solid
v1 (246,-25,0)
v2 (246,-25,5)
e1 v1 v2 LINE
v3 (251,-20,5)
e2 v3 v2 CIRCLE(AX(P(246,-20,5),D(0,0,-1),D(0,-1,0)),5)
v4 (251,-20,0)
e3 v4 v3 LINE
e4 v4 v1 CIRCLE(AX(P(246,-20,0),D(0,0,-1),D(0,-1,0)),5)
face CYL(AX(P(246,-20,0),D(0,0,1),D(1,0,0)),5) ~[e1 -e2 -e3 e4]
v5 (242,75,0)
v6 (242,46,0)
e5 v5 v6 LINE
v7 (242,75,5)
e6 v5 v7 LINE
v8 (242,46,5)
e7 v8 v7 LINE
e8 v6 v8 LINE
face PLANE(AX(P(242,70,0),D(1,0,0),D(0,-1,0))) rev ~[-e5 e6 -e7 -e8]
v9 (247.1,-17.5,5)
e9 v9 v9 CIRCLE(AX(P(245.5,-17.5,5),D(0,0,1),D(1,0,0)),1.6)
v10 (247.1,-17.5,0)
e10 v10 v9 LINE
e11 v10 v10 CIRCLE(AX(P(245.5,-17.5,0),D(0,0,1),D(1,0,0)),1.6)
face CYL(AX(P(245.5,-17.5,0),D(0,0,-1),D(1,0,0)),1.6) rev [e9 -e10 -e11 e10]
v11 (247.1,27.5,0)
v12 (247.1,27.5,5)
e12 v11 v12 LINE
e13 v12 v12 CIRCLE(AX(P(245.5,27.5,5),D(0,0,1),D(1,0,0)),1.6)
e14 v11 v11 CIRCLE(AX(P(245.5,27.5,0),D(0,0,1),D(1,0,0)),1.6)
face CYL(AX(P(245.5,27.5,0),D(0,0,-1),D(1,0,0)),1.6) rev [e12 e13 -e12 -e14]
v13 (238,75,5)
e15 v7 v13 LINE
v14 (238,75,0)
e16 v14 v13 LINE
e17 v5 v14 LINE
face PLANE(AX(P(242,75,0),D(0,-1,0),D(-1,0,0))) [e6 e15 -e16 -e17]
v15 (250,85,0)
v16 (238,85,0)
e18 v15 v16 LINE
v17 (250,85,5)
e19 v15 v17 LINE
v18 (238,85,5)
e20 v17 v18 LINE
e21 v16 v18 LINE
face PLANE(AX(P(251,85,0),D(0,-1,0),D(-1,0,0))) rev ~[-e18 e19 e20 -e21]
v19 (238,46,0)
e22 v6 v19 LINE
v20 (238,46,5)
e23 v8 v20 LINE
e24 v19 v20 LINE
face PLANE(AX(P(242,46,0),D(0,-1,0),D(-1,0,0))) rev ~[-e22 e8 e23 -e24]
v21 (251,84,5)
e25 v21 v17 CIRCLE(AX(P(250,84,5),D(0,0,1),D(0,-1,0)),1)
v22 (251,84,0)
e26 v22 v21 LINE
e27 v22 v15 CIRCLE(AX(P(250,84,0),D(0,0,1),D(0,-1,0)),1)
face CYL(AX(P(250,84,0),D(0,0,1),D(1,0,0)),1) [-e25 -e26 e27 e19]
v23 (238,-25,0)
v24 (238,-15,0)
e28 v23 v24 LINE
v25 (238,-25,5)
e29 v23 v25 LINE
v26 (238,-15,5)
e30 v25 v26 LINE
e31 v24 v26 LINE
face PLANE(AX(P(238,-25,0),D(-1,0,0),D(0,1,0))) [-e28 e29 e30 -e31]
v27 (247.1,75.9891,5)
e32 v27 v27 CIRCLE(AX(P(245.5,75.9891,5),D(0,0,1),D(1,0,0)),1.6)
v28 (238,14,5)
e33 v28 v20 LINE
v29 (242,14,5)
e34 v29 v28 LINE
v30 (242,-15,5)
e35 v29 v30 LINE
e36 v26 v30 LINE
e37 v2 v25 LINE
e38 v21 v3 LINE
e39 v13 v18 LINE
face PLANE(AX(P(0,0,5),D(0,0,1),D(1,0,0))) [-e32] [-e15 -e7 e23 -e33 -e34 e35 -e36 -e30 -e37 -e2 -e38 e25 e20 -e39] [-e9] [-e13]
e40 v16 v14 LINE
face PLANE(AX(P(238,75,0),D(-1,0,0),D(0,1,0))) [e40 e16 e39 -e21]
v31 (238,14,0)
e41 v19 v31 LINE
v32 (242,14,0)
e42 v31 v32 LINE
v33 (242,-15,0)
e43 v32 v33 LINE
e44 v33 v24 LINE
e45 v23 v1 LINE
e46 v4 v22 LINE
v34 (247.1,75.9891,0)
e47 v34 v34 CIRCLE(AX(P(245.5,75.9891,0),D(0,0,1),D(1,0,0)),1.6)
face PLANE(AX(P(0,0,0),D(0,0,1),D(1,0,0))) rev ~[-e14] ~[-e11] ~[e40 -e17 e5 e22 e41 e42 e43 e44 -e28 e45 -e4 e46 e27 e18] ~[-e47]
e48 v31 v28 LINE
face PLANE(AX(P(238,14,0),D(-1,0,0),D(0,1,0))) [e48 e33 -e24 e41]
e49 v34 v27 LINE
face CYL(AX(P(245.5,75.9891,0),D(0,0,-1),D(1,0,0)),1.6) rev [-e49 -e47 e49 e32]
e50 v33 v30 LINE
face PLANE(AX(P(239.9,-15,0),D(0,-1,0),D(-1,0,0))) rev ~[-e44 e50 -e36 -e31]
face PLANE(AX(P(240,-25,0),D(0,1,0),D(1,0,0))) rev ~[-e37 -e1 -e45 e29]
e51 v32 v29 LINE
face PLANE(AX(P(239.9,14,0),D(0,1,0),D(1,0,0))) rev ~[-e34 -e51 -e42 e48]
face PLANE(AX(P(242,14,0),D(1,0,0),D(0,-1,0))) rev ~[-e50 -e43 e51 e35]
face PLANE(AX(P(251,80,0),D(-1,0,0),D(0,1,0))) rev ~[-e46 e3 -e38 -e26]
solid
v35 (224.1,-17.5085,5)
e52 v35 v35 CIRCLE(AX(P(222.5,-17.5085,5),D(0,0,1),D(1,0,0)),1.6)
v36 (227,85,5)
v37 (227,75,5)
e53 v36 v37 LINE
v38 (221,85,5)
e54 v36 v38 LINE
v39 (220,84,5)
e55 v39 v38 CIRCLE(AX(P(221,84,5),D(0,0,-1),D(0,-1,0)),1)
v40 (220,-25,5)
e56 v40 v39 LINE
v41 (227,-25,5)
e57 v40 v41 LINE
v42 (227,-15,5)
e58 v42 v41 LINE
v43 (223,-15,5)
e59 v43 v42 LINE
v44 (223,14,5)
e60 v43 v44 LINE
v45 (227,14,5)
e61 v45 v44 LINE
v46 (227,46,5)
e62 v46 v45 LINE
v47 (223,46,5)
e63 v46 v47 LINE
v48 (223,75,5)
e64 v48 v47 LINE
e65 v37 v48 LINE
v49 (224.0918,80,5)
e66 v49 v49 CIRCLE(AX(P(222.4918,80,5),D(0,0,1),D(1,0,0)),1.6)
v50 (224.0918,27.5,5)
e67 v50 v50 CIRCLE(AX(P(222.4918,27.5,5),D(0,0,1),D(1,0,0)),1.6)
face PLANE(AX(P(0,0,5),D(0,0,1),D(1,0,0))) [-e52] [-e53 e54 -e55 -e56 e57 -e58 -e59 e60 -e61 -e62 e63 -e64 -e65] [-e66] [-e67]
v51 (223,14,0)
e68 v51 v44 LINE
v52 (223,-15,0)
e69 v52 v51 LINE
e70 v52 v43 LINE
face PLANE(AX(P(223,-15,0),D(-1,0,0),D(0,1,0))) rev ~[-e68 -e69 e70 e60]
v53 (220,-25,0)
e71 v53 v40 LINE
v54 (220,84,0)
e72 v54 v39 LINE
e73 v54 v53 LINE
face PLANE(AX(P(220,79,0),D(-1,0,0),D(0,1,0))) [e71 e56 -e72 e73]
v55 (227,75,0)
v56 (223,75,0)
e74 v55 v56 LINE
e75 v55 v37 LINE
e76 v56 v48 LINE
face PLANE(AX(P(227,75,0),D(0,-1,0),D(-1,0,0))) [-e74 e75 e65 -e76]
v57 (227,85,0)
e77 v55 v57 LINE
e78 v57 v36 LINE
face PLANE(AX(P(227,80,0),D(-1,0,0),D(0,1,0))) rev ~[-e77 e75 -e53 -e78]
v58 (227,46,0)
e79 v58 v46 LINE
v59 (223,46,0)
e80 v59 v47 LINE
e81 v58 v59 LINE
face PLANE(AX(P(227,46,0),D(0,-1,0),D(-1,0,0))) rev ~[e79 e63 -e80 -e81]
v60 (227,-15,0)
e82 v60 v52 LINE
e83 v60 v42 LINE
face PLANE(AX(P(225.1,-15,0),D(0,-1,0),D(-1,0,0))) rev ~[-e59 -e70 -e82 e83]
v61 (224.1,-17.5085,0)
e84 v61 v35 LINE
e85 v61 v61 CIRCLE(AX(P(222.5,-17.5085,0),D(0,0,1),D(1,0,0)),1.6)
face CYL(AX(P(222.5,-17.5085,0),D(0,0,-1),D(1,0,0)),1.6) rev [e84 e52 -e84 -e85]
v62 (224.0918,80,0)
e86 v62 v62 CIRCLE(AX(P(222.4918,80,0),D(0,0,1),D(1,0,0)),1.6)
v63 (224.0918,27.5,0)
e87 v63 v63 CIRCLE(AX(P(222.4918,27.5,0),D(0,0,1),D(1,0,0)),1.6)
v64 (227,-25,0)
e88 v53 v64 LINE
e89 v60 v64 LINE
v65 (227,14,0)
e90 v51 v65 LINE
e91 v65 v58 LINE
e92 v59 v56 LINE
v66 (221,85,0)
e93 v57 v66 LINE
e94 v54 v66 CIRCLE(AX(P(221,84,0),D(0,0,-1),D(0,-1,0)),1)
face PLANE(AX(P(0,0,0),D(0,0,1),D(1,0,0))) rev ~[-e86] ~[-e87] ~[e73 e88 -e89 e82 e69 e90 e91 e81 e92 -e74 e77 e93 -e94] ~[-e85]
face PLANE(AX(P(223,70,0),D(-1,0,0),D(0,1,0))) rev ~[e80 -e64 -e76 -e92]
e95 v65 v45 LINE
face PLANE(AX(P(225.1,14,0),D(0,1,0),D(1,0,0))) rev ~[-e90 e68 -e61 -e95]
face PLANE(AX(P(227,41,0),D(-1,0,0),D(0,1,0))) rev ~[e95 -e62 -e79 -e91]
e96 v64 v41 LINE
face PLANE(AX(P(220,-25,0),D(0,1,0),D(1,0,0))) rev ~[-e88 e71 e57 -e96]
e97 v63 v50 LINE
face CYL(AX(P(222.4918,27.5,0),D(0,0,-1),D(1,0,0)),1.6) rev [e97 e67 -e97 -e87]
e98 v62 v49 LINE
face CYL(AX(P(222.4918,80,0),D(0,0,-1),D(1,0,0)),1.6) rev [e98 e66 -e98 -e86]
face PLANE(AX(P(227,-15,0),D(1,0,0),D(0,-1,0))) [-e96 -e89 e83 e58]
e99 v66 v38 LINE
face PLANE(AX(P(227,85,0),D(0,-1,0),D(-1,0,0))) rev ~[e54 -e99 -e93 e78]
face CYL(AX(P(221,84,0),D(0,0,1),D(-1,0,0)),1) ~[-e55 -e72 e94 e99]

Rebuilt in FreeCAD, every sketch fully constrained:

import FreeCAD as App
import Part
import Sketcher


def edges_at(feature, points):
    """Names of the edges that pass closest to the given points."""
    edges = feature.Shape.Edges
    near = lambda p: min(range(len(edges)), key=lambda i: edges[i].distToShape(Part.Vertex(*p))[0])
    return sorted({f"Edge{near(p) + 1}" for p in points})


def add_polygon(sketch, points):
    """Adds a closed chain of lines whose ends are joined by coincident constraints."""
    first, n = sketch.GeometryCount, len(points)
    for a, b in zip(points, points[1:] + points[:1]):
        sketch.addGeometry(Part.LineSegment(App.Vector(*a, 0), App.Vector(*b, 0)), False)
    for i in range(n):
        sketch.addConstraint(Sketcher.Constraint("Coincident", first + i, 2, first + (i + 1) % n, 1))

doc = App.newDocument("Part")
body = doc.addObject("PartDesign::Body", "Body")
body.AllowCompound = True

sketch1 = doc.addObject("Sketcher::SketchObject", "Sketch")
body.addObject(sketch1)
sketch1.AttachmentSupport = (doc.XY_Plane, [""])
sketch1.MapMode = "FlatFace"
add_polygon(sketch1, [(220, 85), (220, -25), (227, -25), (227, -15), (223, -15), (223, 14), (227, 14), (227, 46), (223, 46), (223, 75), (227, 75), (227, 85)])
sketch1.addGeometry(Part.Circle(App.Vector(222.5, -17.5, 0), App.Vector(0, 0, 1), 1.6), False)
sketch1.addGeometry(Part.Circle(App.Vector(222.5, 27.5, 0), App.Vector(0, 0, 1), 1.6), False)
sketch1.addGeometry(Part.Circle(App.Vector(222.5, 80, 0), App.Vector(0, 0, 1), 1.6), False)
add_polygon(sketch1, [(238, 85), (238, 75), (242, 75), (242, 46), (238, 46), (238, 14), (242, 14), (242, -15), (238, -15), (238, -25), (251, -25), (251, 85)])
sketch1.addGeometry(Part.Circle(App.Vector(245.5, -17.5, 0), App.Vector(0, 0, 1), 1.6), False)
sketch1.addGeometry(Part.Circle(App.Vector(245.5, 27.5, 0), App.Vector(0, 0, 1), 1.6), False)
sketch1.addGeometry(Part.Circle(App.Vector(245.5, 76, 0), App.Vector(0, 0, 1), 1.6), False)
sketch1.addConstraint(Sketcher.Constraint("Vertical", 0))
sketch1.addConstraint(Sketcher.Constraint("Horizontal", 1))
sketch1.addConstraint(Sketcher.Constraint("Vertical", 2))
sketch1.addConstraint(Sketcher.Constraint("Horizontal", 3))
sketch1.addConstraint(Sketcher.Constraint("Vertical", 4))
sketch1.addConstraint(Sketcher.Constraint("Horizontal", 5))
sketch1.addConstraint(Sketcher.Constraint("Vertical", 6))
sketch1.addConstraint(Sketcher.Constraint("Horizontal", 7))
sketch1.addConstraint(Sketcher.Constraint("Vertical", 8))
sketch1.addConstraint(Sketcher.Constraint("Horizontal", 9))
sketch1.addConstraint(Sketcher.Constraint("Vertical", 10))
sketch1.addConstraint(Sketcher.Constraint("Horizontal", 11))
sketch1.addConstraint(Sketcher.Constraint("Vertical", 15))
sketch1.addConstraint(Sketcher.Constraint("Horizontal", 16))
sketch1.addConstraint(Sketcher.Constraint("Vertical", 17))
sketch1.addConstraint(Sketcher.Constraint("Horizontal", 18))
sketch1.addConstraint(Sketcher.Constraint("Vertical", 19))
sketch1.addConstraint(Sketcher.Constraint("Horizontal", 20))
sketch1.addConstraint(Sketcher.Constraint("Vertical", 21))
sketch1.addConstraint(Sketcher.Constraint("Horizontal", 22))
sketch1.addConstraint(Sketcher.Constraint("Vertical", 23))
sketch1.addConstraint(Sketcher.Constraint("Horizontal", 24))
sketch1.addConstraint(Sketcher.Constraint("Vertical", 25))
sketch1.addConstraint(Sketcher.Constraint("Horizontal", 26))
sketch1.addConstraint(Sketcher.Constraint("Equal", 12, 13))
sketch1.addConstraint(Sketcher.Constraint("Equal", 13, 14))
sketch1.addConstraint(Sketcher.Constraint("Equal", 14, 27))
sketch1.addConstraint(Sketcher.Constraint("Equal", 27, 28))
sketch1.addConstraint(Sketcher.Constraint("Equal", 28, 29))
sketch1.addConstraint(Sketcher.Constraint("Horizontal", 13, 3, 28, 3))
sketch1.addConstraint(Sketcher.Constraint("Horizontal", 9, 2, 15, 2))
sketch1.addConstraint(Sketcher.Constraint("Horizontal", 7, 2, 17, 2))
sketch1.addConstraint(Sketcher.Constraint("Horizontal", 5, 2, 19, 2))
sketch1.addConstraint(Sketcher.Constraint("Horizontal", 3, 2, 21, 2))
sketch1.addConstraint(Sketcher.Constraint("Horizontal", 1, 2, 23, 2))
sketch1.addConstraint(Sketcher.Constraint("Horizontal", 11, 2, 25, 2))
sketch1.addConstraint(Sketcher.Constraint("Vertical", 13, 3, 14, 3))
sketch1.addConstraint(Sketcher.Constraint("Vertical", 27, 3, 28, 3))
sketch1.addConstraint(Sketcher.Constraint("Vertical", 28, 3, 29, 3))
sketch1.addConstraint(Sketcher.Constraint("Vertical", 2, 2, 5, 2))
sketch1.addConstraint(Sketcher.Constraint("Vertical", 4, 2, 7, 2))
sketch1.addConstraint(Sketcher.Constraint("Vertical", 6, 2, 9, 2))
sketch1.addConstraint(Sketcher.Constraint("Vertical", 15, 2, 18, 2))
sketch1.addConstraint(Sketcher.Constraint("Vertical", 17, 2, 20, 2))
sketch1.addConstraint(Sketcher.Constraint("Vertical", 19, 2, 22, 2))
sketch1.addConstraint(Sketcher.Constraint("Equal", 9, 16))
sketch1.addConstraint(Sketcher.Constraint("Equal", 4, 8))
sketch1.addConstraint(Sketcher.Constraint("Equal", 2, 10))
sketch1.addConstraint(Sketcher.Constraint("DistanceX", 1, 1, 1, 2, 7.0))
sketch1.addConstraint(Sketcher.Constraint("DistanceY", 8, 2, 14, 3, 5.0))
sketch1.addConstraint(Sketcher.Constraint("DistanceY", 14, 3, 10, 2, 5.0))
sketch1.addConstraint(Sketcher.Constraint("Diameter", 12, 3.2))
sketch1.addConstraint(Sketcher.Constraint("DistanceY", 0, 2, 27, 3, 7.5))
sketch1.addConstraint(Sketcher.Constraint("DistanceX", 12, 3, 1, 2, 4.5))
sketch1.addConstraint(Sketcher.Constraint("DistanceX", 15, 2, 29, 3, 7.5))
sketch1.addConstraint(Sketcher.Constraint("DistanceX", 3, 2, 3, 1, 4.0))
sketch1.addConstraint(Sketcher.Constraint("DistanceX", 24, 1, 24, 2, 13.0))
sketch1.addConstraint(Sketcher.Constraint("DistanceY", 0, 2, 0, 1, 110.0))
sketch1.addConstraint(Sketcher.Constraint("DistanceY", 4, 1, 4, 2, 29.0))
sketch1.addConstraint(Sketcher.Constraint("DistanceY", -1, 1, 14, 3, 80.0))
sketch1.addConstraint(Sketcher.Constraint("DistanceX", -1, 1, 0, 2, 220.0))
sketch1.addConstraint(Sketcher.Constraint("DistanceX", -1, 1, 15, 2, 238.0))
sketch1.addConstraint(Sketcher.Constraint("DistanceY", 27, 3, 13, 3, 45.0))
sketch1.addConstraint(Sketcher.Constraint("DistanceX", 13, 3, 1, 2, 4.5082))
sketch1.addConstraint(Sketcher.Constraint("DistanceY", -1, 1, 29, 3, 75.989))
sketch1.addConstraint(Sketcher.Constraint("DistanceY", 12, 3, -1, 1, 17.5085))
pad1 = doc.addObject("PartDesign::Pad", "Pad")
body.addObject(pad1)
pad1.Profile = sketch1
pad1.Length = 5
doc.recompute()

fillet = doc.addObject("PartDesign::Fillet", "Fillet")
body.addObject(fillet)
fillet.Base = (pad1, edges_at(pad1, [(251, -25, 2.5)]))
fillet.Radius = 5
doc.recompute()

fillet2 = doc.addObject("PartDesign::Fillet", "Fillet001")
body.addObject(fillet2)
fillet2.Base = (fillet, edges_at(fillet, [(251, 85, 2.5)]))
fillet2.Radius = 1
doc.recompute()

fillet3 = doc.addObject("PartDesign::Fillet", "Fillet002")
body.addObject(fillet3)
fillet3.Base = (fillet2, edges_at(fillet2, [(220, 85, 2.5)]))
fillet3.Radius = 1

doc.recompute()
